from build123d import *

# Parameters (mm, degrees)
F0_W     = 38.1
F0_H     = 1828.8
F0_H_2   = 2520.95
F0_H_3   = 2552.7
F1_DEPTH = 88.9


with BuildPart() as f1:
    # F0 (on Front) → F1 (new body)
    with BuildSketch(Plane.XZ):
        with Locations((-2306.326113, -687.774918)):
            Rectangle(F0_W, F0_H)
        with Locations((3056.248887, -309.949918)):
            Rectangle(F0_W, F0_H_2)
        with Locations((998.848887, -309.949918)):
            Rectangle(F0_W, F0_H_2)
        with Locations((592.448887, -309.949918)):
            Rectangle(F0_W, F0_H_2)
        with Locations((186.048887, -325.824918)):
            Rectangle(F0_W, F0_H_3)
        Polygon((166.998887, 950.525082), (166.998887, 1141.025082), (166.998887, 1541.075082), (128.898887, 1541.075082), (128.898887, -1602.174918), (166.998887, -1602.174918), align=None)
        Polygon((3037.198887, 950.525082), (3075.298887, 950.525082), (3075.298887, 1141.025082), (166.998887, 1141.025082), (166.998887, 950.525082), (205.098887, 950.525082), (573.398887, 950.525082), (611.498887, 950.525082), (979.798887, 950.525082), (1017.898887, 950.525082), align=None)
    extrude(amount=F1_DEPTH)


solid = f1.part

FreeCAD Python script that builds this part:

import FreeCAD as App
import Part
import Sketcher
from FreeCAD import Vector
Q = App.Units.Quantity


def add_polygon(sketch, points):
    """Adds a closed chain of lines whose ends are joined by coincident constraints."""
    first, n = sketch.GeometryCount, len(points)
    for a, b in zip(points, points[1:] + points[:1]):
        sketch.addGeometry(Part.LineSegment(App.Vector(*a, 0), App.Vector(*b, 0)), False)
    for i in range(n):
        sketch.addConstraint(Sketcher.Constraint("Coincident", first + i, 2, first + (i + 1) % n, 1))

doc = App.newDocument("Part")
body = doc.addObject("PartDesign::Body", "Body")
body.AllowCompound = True

sketch1 = body.newObject("Sketcher::SketchObject", "Sketch")
sketch1.AttachmentSupport = (doc.getObject("XZ_Plane"), [""])
sketch1.MapMode = "FlatFace"
add_polygon(sketch1, [(-2325, 227), (-2325, -1602), (-2287, -1602), (-2287, 227)])
add_polygon(sketch1, [(3037, 951), (3037, -1570), (3075, -1570), (3075, 1141), (167, 1141), (167, 1541), (129, 1541), (129, -1602), (205, -1602), (205, 951), (573, 951), (573, -1570), (611, -1570), (611, 951), (980, 951), (980, -1570), (1018, -1570), (1018, 951)])
sketch1.addConstraint(Sketcher.Constraint("Vertical", 0))
sketch1.addConstraint(Sketcher.Constraint("Horizontal", 1))
sketch1.addConstraint(Sketcher.Constraint("Vertical", 2))
sketch1.addConstraint(Sketcher.Constraint("Horizontal", 3))
sketch1.addConstraint(Sketcher.Constraint("Vertical", 4))
sketch1.addConstraint(Sketcher.Constraint("Horizontal", 5))
sketch1.addConstraint(Sketcher.Constraint("Vertical", 6))
sketch1.addConstraint(Sketcher.Constraint("Horizontal", 7))
sketch1.addConstraint(Sketcher.Constraint("Vertical", 8))
sketch1.addConstraint(Sketcher.Constraint("Horizontal", 9))
sketch1.addConstraint(Sketcher.Constraint("Vertical", 10))
sketch1.addConstraint(Sketcher.Constraint("Horizontal", 11))
sketch1.addConstraint(Sketcher.Constraint("Vertical", 12))
sketch1.addConstraint(Sketcher.Constraint("Horizontal", 13))
sketch1.addConstraint(Sketcher.Constraint("Vertical", 14))
sketch1.addConstraint(Sketcher.Constraint("Horizontal", 15))
sketch1.addConstraint(Sketcher.Constraint("Vertical", 16))
sketch1.addConstraint(Sketcher.Constraint("Horizontal", 17))
sketch1.addConstraint(Sketcher.Constraint("Vertical", 18))
sketch1.addConstraint(Sketcher.Constraint("Horizontal", 19))
sketch1.addConstraint(Sketcher.Constraint("Vertical", 20))
sketch1.addConstraint(Sketcher.Constraint("Horizontal", 21))
sketch1.addConstraint(Sketcher.Constraint("Horizontal", 1, 2, 10, 2))
sketch1.addConstraint(Sketcher.Constraint("Horizontal", 5, 2, 14, 2))
sketch1.addConstraint(Sketcher.Constraint("Horizontal", 13, 2, 16, 2))
sketch1.addConstraint(Sketcher.Constraint("Horizontal", 15, 2, 18, 2))
sketch1.addConstraint(Sketcher.Constraint("Horizontal", 17, 2, 20, 2))
sketch1.addConstraint(Sketcher.Constraint("Equal", 3, 5))
sketch1.addConstraint(Sketcher.Constraint("Equal", 5, 9))
sketch1.addConstraint(Sketcher.Constraint("Equal", 9, 15))
sketch1.addConstraint(Sketcher.Constraint("Equal", 13, 17))
sketch1.addConstraint(Sketcher.Constraint("Equal", 15, 19))
sketch1.addConstraint(Sketcher.Constraint("DistanceX", 11, 1, 11, 2, Q("3 in")))
sketch1.addConstraint(Sketcher.Constraint("DistanceY", 0, 2, 0, 1, Q("72 in")))
sketch1.addConstraint(Sketcher.Constraint("DistanceX", 1, 1, 1, 2, Q("1.5 in")))
sketch1.addConstraint(Sketcher.Constraint("DistanceX", 7, 2, 7, 1, Q("114.5 in")))
sketch1.addConstraint(Sketcher.Constraint("DistanceX", 13, 1, 13, 2, Q("14.5 in")))
sketch1.addConstraint(Sketcher.Constraint("DistanceY", 12, 1, 12, 2, Q("100.5 in")))
sketch1.addConstraint(Sketcher.Constraint("DistanceY", 2, 2, 6, 2, Q("36 in")))
sketch1.addConstraint(Sketcher.Constraint("DistanceY", 4, 2, 4, 1, Q("99.25 in")))
sketch1.addConstraint(Sketcher.Constraint("DistanceY", 8, 1, 8, 2, Q("15.75 in")))
sketch1.addConstraint(Sketcher.Constraint("DistanceX", 1, 2, 4, 2, Q("209.625 in")))
sketch1.addConstraint(Sketcher.Constraint("DistanceY", 0, 2, -1, 1, 1602.174918))
sketch1.addConstraint(Sketcher.Constraint("DistanceX", 0, 2, -1, 1, 2325.376113))
pad1 = body.newObject("PartDesign::Pad", "Pad")
pad1.Profile = sketch1
pad1.Length = Q("3.5 in")

doc.recompute()
